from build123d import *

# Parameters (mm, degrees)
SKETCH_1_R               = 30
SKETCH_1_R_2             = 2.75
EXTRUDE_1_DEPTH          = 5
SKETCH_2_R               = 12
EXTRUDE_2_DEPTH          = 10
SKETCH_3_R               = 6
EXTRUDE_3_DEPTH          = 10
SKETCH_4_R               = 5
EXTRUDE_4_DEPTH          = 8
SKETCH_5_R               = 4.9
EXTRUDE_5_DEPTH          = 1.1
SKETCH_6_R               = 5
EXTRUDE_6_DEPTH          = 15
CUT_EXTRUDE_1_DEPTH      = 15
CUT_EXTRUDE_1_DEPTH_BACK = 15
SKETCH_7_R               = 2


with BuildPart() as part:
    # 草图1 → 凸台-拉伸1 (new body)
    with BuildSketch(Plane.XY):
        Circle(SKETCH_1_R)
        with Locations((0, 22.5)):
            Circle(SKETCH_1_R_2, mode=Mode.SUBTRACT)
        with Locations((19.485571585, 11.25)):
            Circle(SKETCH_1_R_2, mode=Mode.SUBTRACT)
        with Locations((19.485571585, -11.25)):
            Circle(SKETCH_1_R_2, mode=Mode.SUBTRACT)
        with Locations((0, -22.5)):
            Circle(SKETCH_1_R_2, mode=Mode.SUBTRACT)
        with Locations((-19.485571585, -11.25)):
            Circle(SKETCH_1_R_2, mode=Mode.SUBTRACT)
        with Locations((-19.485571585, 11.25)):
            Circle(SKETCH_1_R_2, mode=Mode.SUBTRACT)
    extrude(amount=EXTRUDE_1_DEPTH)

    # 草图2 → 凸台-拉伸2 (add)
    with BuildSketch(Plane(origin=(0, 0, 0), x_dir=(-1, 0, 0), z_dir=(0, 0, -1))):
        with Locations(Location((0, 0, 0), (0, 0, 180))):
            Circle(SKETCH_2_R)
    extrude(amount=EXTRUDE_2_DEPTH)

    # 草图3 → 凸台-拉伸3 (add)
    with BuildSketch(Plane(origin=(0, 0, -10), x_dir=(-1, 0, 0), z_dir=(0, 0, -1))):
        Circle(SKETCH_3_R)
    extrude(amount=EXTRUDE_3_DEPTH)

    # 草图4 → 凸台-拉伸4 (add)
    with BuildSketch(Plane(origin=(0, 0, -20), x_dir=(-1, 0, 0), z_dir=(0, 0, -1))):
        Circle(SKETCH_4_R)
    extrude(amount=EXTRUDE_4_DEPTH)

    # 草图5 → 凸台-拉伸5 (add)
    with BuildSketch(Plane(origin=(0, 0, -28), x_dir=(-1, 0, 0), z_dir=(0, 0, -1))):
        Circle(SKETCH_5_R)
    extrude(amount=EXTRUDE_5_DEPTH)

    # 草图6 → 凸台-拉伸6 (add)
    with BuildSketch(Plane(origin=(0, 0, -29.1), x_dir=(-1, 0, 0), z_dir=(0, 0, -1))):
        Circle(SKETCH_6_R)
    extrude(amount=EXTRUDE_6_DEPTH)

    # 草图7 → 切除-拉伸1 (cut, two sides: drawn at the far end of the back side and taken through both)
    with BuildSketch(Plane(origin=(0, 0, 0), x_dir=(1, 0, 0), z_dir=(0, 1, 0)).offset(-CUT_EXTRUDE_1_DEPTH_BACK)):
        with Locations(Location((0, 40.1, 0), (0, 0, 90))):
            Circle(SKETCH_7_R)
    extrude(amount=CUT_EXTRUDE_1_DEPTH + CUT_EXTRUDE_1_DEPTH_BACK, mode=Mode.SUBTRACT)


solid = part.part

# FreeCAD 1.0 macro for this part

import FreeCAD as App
import Part
import Sketcher

doc = App.newDocument("Part")
body = doc.addObject("PartDesign::Body", "Body")

# Sketch on XY plane
sketch1 = body.newObject("Sketcher::SketchObject", "Sketch")
sketch1.AttachmentSupport = (doc.getObject("XY_Plane"), [""])
sketch1.MapMode = "FlatFace"
sketch1.addGeometry([
    Part.Circle(App.Vector(0, 0, 0), App.Vector(0, 0, 1), 30),  # 0
    Part.Circle(App.Vector(-19.5, -11.2, 0), App.Vector(0, 0, 1), 2.8),  # 1
    Part.Circle(App.Vector(0, -22.5, 0), App.Vector(0, 0, 1), 2.8),  # 2
    Part.Circle(App.Vector(19.5, -11.2, 0), App.Vector(0, 0, 1), 2.8),  # 3
    Part.Circle(App.Vector(-19.5, 11.2, 0), App.Vector(0, 0, 1), 2.8),  # 4
    Part.Circle(App.Vector(19.5, 11.2, 0), App.Vector(0, 0, 1), 2.8),  # 5
    Part.Circle(App.Vector(0, 22.5, 0), App.Vector(0, 0, 1), 2.8),  # 6
], False)
sketch1.addConstraint([
    Sketcher.Constraint("Coincident", 0, 3, -1, 1),
    Sketcher.Constraint("Equal", 1, 2),
    Sketcher.Constraint("Equal", 2, 3),
    Sketcher.Constraint("Equal", 3, 4),
    Sketcher.Constraint("Equal", 4, 5),
    Sketcher.Constraint("Equal", 5, 6),
    Sketcher.Constraint("Symmetric", 3, 3, 4, 3, -1, 1),
    Sketcher.Constraint("Symmetric", 1, 3, 5, 3, -1, 1),
    Sketcher.Constraint("Symmetric", 2, 3, 6, 3, -1, 1),
    Sketcher.Constraint("Symmetric", 1, 3, 3, 3, -2),
    Sketcher.Constraint("PointOnObject", 2, 3, -2),
    Sketcher.Constraint("Diameter", 0, 60.0),
    Sketcher.Constraint("Diameter", 1, 5.5),
    Sketcher.Constraint("DistanceY", 2, 3, -1, 1, 22.5),
    Sketcher.Constraint("DistanceY", 1, 3, 4, 3, 22.5),
    Sketcher.Constraint("DistanceX", 1, 3, -1, 1, 19.485572),
])
pad1 = body.newObject("PartDesign::Pad", "Pad")
pad1.Profile = sketch1
pad1.Length = 5

# Sketch on XY plane
sketch2 = body.newObject("Sketcher::SketchObject", "Sketch001")
sketch2.AttachmentSupport = (doc.getObject("XY_Plane"), [""])
sketch2.MapMode = "FlatFace"
sketch2.addGeometry(Part.Circle(App.Vector(0, 0, 0), App.Vector(0, 0, 1), 12), False)
sketch2.addConstraint([
    Sketcher.Constraint("Coincident", 0, 3, -1, 1),
    Sketcher.Constraint("Diameter", 0, 24.0),
])
pad2 = body.newObject("PartDesign::Pad", "Pad001")
pad2.Profile = sketch2
pad2.Length = 10
pad2.Reversed = True

# Sketch on XY plane
sketch3 = body.newObject("Sketcher::SketchObject", "Sketch002")
sketch3.AttachmentSupport = (doc.getObject("XY_Plane"), [""])
sketch3.MapMode = "FlatFace"
sketch3.AttachmentOffset = App.Placement(App.Vector(0, 0, -10), App.Rotation())
sketch3.addGeometry(Part.Circle(App.Vector(0, 0, 0), App.Vector(0, 0, 1), 6), False)
sketch3.addConstraint([
    Sketcher.Constraint("Coincident", 0, 3, -1, 1),
    Sketcher.Constraint("Diameter", 0, 12.0),
])
pad3 = body.newObject("PartDesign::Pad", "Pad002")
pad3.Profile = sketch3
pad3.Length = 10
pad3.Reversed = True

# Sketch on XY plane
sketch4 = body.newObject("Sketcher::SketchObject", "Sketch003")
sketch4.AttachmentSupport = (doc.getObject("XY_Plane"), [""])
sketch4.MapMode = "FlatFace"
sketch4.AttachmentOffset = App.Placement(App.Vector(0, 0, -20), App.Rotation())
sketch4.addGeometry(Part.Circle(App.Vector(0, 0, 0), App.Vector(0, 0, 1), 5), False)
sketch4.addConstraint([
    Sketcher.Constraint("Coincident", 0, 3, -1, 1),
    Sketcher.Constraint("Diameter", 0, 10.0),
])
pad4 = body.newObject("PartDesign::Pad", "Pad003")
pad4.Profile = sketch4
pad4.Length = 8
pad4.Reversed = True

# Sketch on XY plane
sketch5 = body.newObject("Sketcher::SketchObject", "Sketch004")
sketch5.AttachmentSupport = (doc.getObject("XY_Plane"), [""])
sketch5.MapMode = "FlatFace"
sketch5.AttachmentOffset = App.Placement(App.Vector(0, 0, -28), App.Rotation())
sketch5.addGeometry(Part.Circle(App.Vector(0, 0, 0), App.Vector(0, 0, 1), 4.9), False)
sketch5.addConstraint([
    Sketcher.Constraint("Coincident", 0, 3, -1, 1),
    Sketcher.Constraint("Diameter", 0, 9.8),
])
pad5 = body.newObject("PartDesign::Pad", "Pad004")
pad5.Profile = sketch5
pad5.Length = 1.1
pad5.Reversed = True

# Sketch on XY plane
sketch6 = body.newObject("Sketcher::SketchObject", "Sketch005")
sketch6.AttachmentSupport = (doc.getObject("XY_Plane"), [""])
sketch6.MapMode = "FlatFace"
sketch6.AttachmentOffset = App.Placement(App.Vector(0, 0, -29.1), App.Rotation())
sketch6.addGeometry(Part.Circle(App.Vector(0, 0, 0), App.Vector(0, 0, 1), 5), False)
sketch6.addConstraint([
    Sketcher.Constraint("Coincident", 0, 3, -1, 1),
    Sketcher.Constraint("Diameter", 0, 10.0),
])
pad6 = body.newObject("PartDesign::Pad", "Pad005")
pad6.Profile = sketch6
pad6.Length = 15
pad6.Reversed = True

# Sketch on XZ plane
sketch7 = body.newObject("Sketcher::SketchObject", "Sketch006")
sketch7.AttachmentSupport = (doc.getObject("XZ_Plane"), [""])
sketch7.MapMode = "FlatFace"
sketch7.addGeometry(Part.Circle(App.Vector(0, -40.1, 0), App.Vector(0, 0, 1), 2), False)
sketch7.addConstraint([
    Sketcher.Constraint("PointOnObject", 0, 3, -2),
    Sketcher.Constraint("Diameter", 0, 4.0),
    Sketcher.Constraint("DistanceY", 0, 3, -1, 1, 40.1),
])
pocket1 = body.newObject("PartDesign::Pocket", "Pocket")
pocket1.Profile = sketch7
pocket1.Type = "ThroughAll"
pocket1.Midplane = True

doc.recompute()
